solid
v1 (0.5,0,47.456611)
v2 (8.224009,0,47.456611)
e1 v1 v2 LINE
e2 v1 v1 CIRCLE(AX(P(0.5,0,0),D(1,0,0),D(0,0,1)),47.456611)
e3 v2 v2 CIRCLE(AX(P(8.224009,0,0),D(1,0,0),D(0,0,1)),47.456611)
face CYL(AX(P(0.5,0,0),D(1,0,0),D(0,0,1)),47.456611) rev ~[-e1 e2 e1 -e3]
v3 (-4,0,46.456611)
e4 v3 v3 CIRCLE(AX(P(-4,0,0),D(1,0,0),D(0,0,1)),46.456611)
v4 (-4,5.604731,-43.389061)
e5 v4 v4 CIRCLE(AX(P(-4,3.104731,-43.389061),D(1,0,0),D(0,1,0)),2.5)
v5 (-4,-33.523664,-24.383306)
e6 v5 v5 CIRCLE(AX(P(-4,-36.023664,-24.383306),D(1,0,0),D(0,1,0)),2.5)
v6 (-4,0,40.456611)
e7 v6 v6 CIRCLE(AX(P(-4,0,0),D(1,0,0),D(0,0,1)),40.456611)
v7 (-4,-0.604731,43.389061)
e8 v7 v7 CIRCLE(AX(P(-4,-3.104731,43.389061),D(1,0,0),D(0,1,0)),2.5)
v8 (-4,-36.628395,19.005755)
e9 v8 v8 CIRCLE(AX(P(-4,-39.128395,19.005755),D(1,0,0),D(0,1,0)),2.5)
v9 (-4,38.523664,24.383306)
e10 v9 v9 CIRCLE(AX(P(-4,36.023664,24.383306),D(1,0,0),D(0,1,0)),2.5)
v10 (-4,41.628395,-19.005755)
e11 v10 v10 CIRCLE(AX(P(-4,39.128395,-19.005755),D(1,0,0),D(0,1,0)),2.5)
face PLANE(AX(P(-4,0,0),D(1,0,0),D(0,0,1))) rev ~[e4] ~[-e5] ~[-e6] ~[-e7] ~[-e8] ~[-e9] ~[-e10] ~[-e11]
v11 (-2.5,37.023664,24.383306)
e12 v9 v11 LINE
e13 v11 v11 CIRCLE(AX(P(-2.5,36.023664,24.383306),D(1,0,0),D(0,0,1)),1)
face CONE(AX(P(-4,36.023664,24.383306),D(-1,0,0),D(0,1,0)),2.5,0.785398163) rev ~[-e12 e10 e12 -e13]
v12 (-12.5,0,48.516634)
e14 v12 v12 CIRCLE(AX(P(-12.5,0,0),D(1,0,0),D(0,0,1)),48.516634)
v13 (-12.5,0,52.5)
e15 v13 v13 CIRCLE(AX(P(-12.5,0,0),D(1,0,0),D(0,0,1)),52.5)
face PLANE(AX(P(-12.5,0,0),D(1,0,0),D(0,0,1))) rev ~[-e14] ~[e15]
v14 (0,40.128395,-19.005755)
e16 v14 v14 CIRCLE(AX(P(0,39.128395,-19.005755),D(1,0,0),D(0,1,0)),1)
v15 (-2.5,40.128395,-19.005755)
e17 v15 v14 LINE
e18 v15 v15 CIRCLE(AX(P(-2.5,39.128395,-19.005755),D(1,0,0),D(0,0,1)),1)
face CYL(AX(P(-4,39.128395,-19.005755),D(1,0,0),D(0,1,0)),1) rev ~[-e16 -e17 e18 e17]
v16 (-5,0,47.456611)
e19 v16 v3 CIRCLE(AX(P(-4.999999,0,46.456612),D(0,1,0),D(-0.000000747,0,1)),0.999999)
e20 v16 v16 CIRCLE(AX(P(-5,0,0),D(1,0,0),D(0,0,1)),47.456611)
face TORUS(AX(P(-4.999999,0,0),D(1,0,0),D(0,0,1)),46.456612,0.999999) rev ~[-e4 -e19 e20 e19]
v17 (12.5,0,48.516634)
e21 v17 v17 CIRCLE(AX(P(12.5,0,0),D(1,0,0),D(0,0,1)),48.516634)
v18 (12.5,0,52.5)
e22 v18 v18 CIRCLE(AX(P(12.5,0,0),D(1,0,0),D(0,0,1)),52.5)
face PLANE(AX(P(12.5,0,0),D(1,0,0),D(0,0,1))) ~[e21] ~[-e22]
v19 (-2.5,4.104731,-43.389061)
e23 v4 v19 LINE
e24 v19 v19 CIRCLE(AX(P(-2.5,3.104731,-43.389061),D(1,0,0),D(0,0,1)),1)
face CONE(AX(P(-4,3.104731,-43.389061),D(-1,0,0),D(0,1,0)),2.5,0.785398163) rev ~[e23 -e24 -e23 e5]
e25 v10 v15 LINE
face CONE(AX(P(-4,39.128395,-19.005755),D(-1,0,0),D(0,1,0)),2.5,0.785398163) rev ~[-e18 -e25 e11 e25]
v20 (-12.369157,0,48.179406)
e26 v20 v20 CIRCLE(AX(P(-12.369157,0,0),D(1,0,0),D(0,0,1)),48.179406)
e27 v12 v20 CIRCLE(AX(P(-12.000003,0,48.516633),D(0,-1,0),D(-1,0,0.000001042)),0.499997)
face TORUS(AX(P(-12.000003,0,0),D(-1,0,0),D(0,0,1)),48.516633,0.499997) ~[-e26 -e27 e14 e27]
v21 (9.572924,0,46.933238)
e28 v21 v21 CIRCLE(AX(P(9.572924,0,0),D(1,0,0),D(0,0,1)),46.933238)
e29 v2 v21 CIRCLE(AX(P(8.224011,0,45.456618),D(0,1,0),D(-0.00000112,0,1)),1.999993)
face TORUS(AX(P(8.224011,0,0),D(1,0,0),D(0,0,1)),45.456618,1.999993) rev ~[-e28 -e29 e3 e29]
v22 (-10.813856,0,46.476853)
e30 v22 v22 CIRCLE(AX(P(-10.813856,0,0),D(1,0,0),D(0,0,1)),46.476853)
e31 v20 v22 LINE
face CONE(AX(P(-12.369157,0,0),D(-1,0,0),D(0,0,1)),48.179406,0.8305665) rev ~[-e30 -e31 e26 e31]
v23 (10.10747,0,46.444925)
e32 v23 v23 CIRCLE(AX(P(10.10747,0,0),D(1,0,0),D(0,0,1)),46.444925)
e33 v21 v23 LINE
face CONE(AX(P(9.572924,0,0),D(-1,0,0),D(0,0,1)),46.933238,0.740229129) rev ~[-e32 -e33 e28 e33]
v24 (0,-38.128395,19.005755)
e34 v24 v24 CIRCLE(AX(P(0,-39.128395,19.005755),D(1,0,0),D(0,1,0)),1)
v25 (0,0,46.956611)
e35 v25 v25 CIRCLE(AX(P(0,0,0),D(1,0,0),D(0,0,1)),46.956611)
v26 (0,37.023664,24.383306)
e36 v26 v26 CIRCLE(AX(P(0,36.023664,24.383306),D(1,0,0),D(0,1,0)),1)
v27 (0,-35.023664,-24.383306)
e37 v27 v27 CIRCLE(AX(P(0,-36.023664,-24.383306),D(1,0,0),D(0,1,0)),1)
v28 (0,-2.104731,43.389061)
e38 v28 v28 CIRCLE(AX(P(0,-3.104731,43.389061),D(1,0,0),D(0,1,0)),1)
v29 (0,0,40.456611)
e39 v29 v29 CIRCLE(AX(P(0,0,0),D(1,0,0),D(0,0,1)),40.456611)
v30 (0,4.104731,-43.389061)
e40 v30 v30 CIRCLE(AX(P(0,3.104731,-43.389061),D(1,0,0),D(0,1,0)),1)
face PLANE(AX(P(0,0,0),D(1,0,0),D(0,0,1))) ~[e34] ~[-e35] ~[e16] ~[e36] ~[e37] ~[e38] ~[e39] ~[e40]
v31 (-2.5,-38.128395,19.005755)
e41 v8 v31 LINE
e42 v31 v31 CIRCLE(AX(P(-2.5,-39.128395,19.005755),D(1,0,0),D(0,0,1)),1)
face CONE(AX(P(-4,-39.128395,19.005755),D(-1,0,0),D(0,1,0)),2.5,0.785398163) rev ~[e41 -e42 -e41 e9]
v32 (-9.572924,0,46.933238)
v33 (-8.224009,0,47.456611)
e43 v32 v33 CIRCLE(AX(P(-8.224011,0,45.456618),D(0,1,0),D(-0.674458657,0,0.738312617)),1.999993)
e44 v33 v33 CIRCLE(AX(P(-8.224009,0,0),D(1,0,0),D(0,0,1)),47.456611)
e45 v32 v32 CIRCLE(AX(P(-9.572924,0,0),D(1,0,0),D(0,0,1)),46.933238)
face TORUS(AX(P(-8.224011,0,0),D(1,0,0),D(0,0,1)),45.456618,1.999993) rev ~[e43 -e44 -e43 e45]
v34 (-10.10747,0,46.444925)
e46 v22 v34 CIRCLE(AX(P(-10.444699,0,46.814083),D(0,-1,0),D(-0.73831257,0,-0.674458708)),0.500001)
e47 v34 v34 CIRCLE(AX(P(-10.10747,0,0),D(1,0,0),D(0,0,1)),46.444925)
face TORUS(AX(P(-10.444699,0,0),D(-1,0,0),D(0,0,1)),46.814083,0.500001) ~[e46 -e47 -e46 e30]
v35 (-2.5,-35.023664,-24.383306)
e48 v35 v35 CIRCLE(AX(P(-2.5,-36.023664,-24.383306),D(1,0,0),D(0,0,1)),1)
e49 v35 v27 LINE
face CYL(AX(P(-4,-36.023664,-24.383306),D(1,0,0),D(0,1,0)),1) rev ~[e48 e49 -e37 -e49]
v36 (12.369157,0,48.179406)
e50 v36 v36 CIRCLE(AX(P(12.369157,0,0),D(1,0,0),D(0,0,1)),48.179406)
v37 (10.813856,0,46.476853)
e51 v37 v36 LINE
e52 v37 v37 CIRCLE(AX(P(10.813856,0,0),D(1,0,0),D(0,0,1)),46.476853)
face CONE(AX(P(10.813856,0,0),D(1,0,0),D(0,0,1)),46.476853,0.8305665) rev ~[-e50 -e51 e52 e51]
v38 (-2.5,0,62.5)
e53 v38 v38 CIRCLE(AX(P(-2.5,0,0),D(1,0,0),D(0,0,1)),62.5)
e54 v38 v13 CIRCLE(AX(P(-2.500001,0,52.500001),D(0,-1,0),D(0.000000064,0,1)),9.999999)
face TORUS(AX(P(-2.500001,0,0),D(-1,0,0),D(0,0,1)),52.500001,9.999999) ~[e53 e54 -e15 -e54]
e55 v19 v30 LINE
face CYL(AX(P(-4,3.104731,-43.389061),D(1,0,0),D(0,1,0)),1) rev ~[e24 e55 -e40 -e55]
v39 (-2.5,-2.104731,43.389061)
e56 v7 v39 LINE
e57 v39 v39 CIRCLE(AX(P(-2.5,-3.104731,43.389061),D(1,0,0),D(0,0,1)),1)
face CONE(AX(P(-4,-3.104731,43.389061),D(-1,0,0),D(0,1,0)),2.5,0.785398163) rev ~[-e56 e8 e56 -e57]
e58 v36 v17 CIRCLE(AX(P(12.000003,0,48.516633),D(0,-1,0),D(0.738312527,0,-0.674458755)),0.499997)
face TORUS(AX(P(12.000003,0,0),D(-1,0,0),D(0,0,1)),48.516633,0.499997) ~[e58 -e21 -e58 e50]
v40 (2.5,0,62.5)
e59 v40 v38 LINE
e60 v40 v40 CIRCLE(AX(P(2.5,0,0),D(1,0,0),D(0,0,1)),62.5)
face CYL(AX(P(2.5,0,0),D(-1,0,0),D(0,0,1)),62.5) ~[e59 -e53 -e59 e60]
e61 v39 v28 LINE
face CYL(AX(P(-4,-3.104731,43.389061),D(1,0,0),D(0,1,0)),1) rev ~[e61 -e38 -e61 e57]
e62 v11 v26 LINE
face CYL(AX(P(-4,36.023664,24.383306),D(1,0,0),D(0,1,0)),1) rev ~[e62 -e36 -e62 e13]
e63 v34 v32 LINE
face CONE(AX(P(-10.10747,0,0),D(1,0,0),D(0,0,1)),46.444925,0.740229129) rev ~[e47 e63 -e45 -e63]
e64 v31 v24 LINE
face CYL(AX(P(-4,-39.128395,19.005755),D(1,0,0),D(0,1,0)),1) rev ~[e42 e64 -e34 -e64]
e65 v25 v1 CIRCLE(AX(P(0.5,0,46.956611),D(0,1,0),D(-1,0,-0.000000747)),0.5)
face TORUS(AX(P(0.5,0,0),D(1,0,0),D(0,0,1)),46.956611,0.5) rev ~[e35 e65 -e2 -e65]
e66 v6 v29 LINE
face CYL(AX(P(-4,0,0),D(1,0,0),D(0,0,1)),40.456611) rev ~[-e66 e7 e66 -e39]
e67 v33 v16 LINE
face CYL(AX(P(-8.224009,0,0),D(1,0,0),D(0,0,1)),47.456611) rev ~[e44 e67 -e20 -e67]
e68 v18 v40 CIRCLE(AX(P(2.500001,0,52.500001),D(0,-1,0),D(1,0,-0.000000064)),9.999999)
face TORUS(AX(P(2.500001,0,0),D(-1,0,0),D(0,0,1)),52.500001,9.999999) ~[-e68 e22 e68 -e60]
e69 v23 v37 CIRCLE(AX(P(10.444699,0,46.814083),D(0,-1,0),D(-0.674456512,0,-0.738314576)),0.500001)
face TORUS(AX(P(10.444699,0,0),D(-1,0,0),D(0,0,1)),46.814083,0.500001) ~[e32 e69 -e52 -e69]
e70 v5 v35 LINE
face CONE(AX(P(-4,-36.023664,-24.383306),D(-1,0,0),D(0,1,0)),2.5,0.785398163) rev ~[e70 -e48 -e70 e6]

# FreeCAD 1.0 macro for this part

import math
import FreeCAD as App
import Part
import Sketcher
from FreeCAD import Vector
Q = App.Units.Quantity

doc = App.newDocument("Part")
params = doc.addObject("Spreadsheet::Sheet", "Params")
for row, (alias, value) in enumerate([
    ("sketch1_radius", "9.999999 mm"),
    ("sketch1_radius2", "0.999999 mm"),
    ("sketch1_radius3", "0.500001 mm"),
    ("sketch1_width", "5 mm"),
    ("sketch1_width2", "4 mm"),
    ("revolution_angle", "360 deg"),
    ("sketch2_diameter", "2 mm"),
    ("hole_diameter", "2 mm"),
    ("hole_csink_diameter", "5 mm"),
], start=1):
    params.set(f"A{row}", alias)
    params.set(f"B{row}", "=" + value)
    params.setAlias(f"B{row}", alias)

body = doc.addObject("PartDesign::Body", "Body")

# Sketch on XZ plane
sketch1 = doc.addObject("Sketcher::SketchObject", "Sketch")
body.addObject(sketch1)
sketch1.AttachmentSupport = (doc.XZ_Plane, [""])
sketch1.MapMode = "FlatFace"
sketch1.addGeometry(Part.LineSegment(Vector(2.5, 62.5, 0), Vector(-2.5, 62.5, 0)), False)
sketch1.addGeometry(Part.ArcOfCircle(Part.Circle(Vector(-2.5, 52.5, 0), Vector(0, 0, 1), 10), math.radians(90), math.radians(180)), False)
sketch1.addGeometry(Part.LineSegment(Vector(-12.5, 52.5, 0), Vector(-12.5, 48.52, 0)), False)
sketch1.addGeometry(Part.ArcOfCircle(Part.Circle(Vector(-12, 48.52, 0), Vector(0, 0, 1), 0.5), math.radians(180), math.radians(222)), False)
sketch1.addGeometry(Part.LineSegment(Vector(-12.37, 48.18, 0), Vector(-10.81, 46.48, 0)), False)
sketch1.addGeometry(Part.ArcOfCircle(Part.Circle(Vector(-10.44, 46.81, 0), Vector(0, 0, 1), 0.5), math.radians(-138), math.radians(-48)), False)
sketch1.addGeometry(Part.LineSegment(Vector(-10.11, 46.44, 0), Vector(-9.57, 46.93, 0)), False)
sketch1.addGeometry(Part.ArcOfCircle(Part.Circle(Vector(-8.22, 45.46, 0), Vector(0, 0, 1), 2), math.radians(90), math.radians(132)), False)
sketch1.addGeometry(Part.LineSegment(Vector(-8.22, 47.46, 0), Vector(-5, 47.46, 0)), False)
sketch1.addGeometry(Part.ArcOfCircle(Part.Circle(Vector(-5, 46.46, 0), Vector(0, 0, 1), 1), math.radians(0), math.radians(90)), False)
sketch1.addGeometry(Part.LineSegment(Vector(-4, 46.46, 0), Vector(-4, 40.46, 0)), False)
sketch1.addGeometry(Part.LineSegment(Vector(-4, 40.46, 0), Vector(0, 40.46, 0)), False)
sketch1.addGeometry(Part.LineSegment(Vector(0, 40.46, 0), Vector(0, 46.96, 0)), False)
sketch1.addGeometry(Part.ArcOfCircle(Part.Circle(Vector(0.5, 46.96, 0), Vector(0, 0, 1), 0.5), math.radians(90), math.radians(180)), False)
sketch1.addGeometry(Part.LineSegment(Vector(0.5, 47.46, 0), Vector(8.22, 47.46, 0)), False)
sketch1.addGeometry(Part.ArcOfCircle(Part.Circle(Vector(8.22, 45.46, 0), Vector(0, 0, 1), 2), math.radians(48), math.radians(90)), False)
sketch1.addGeometry(Part.LineSegment(Vector(9.57, 46.93, 0), Vector(10.11, 46.44, 0)), False)
sketch1.addGeometry(Part.ArcOfCircle(Part.Circle(Vector(10.44, 46.81, 0), Vector(0, 0, 1), 0.5), math.radians(-132), math.radians(-42)), False)
sketch1.addGeometry(Part.LineSegment(Vector(10.81, 46.48, 0), Vector(12.37, 48.18, 0)), False)
sketch1.addGeometry(Part.ArcOfCircle(Part.Circle(Vector(12, 48.52, 0), Vector(0, 0, 1), 0.5), math.radians(-42), math.radians(0)), False)
sketch1.addGeometry(Part.LineSegment(Vector(12.5, 48.52, 0), Vector(12.5, 52.5, 0)), False)
sketch1.addGeometry(Part.ArcOfCircle(Part.Circle(Vector(2.5, 52.5, 0), Vector(0, 0, 1), 10), math.radians(0), math.radians(90)), False)
sketch1.addConstraint(Sketcher.Constraint("Tangent", 0, 2, 1, 1))
sketch1.addConstraint(Sketcher.Constraint("Tangent", 1, 2, 2, 1))
sketch1.addConstraint(Sketcher.Constraint("Tangent", 2, 2, 3, 1))
sketch1.addConstraint(Sketcher.Constraint("Tangent", 3, 2, 4, 1))
sketch1.addConstraint(Sketcher.Constraint("Tangent", 4, 2, 5, 1))
sketch1.addConstraint(Sketcher.Constraint("Tangent", 5, 2, 6, 1))
sketch1.addConstraint(Sketcher.Constraint("Coincident", 6, 2, 7, 2))
sketch1.addConstraint(Sketcher.Constraint("Tangent", 7, 1, 8, 1))
sketch1.addConstraint(Sketcher.Constraint("Tangent", 8, 2, 9, 2))
sketch1.addConstraint(Sketcher.Constraint("Tangent", 9, 1, 10, 1))
sketch1.addConstraint(Sketcher.Constraint("Coincident", 10, 2, 11, 1))
sketch1.addConstraint(Sketcher.Constraint("Coincident", 11, 2, 12, 1))
sketch1.addConstraint(Sketcher.Constraint("Tangent", 12, 2, 13, 2))
sketch1.addConstraint(Sketcher.Constraint("Tangent", 13, 1, 14, 1))
sketch1.addConstraint(Sketcher.Constraint("Tangent", 14, 2, 15, 2))
sketch1.addConstraint(Sketcher.Constraint("Coincident", 15, 1, 16, 1))
sketch1.addConstraint(Sketcher.Constraint("Tangent", 16, 2, 17, 1))
sketch1.addConstraint(Sketcher.Constraint("Tangent", 17, 2, 18, 1))
sketch1.addConstraint(Sketcher.Constraint("Tangent", 18, 2, 19, 1))
sketch1.addConstraint(Sketcher.Constraint("Tangent", 19, 2, 20, 1))
sketch1.addConstraint(Sketcher.Constraint("Tangent", 20, 2, 21, 1))
sketch1.addConstraint(Sketcher.Constraint("Tangent", 21, 2, 0, 1))
sketch1.addConstraint(Sketcher.Constraint("Horizontal", 0))
sketch1.addConstraint(Sketcher.Constraint("Vertical", 2))
sketch1.addConstraint(Sketcher.Constraint("Horizontal", 8))
sketch1.addConstraint(Sketcher.Constraint("Vertical", 10))
sketch1.addConstraint(Sketcher.Constraint("Horizontal", 11))
sketch1.addConstraint(Sketcher.Constraint("Vertical", 12))
sketch1.addConstraint(Sketcher.Constraint("Horizontal", 14))
sketch1.addConstraint(Sketcher.Constraint("Vertical", 20))
sketch1.addConstraint(Sketcher.Constraint("Equal", 5, 13))
sketch1.addConstraint(Sketcher.Constraint("Equal", 7, 15))
sketch1.addConstraint(Sketcher.Constraint("Equal", 13, 17))
sketch1.addConstraint(Sketcher.Constraint("Equal", 3, 19))
sketch1.addConstraint(Sketcher.Constraint("Equal", 1, 21))
sketch1.addConstraint(Sketcher.Constraint("Symmetric", 7, 3, 15, 3, -2))
sketch1.addConstraint(Sketcher.Constraint("Symmetric", 5, 3, 17, 3, -2))
sketch1.addConstraint(Sketcher.Constraint("Symmetric", 3, 3, 19, 3, -2))
sketch1.addConstraint(Sketcher.Constraint("PointOnObject", 11, 2, -2))
sketch1.addConstraint(Sketcher.Constraint("Perpendicular", 4, 6))
sketch1.addConstraint(Sketcher.Constraint("Horizontal", 6, 2, 15, 1))
sketch1.addConstraint(Sketcher.Constraint("Radius", 1, Q("9.999999 mm")))
sketch1.addConstraint(Sketcher.Constraint("Radius", 9, Q("0.999999 mm")))
sketch1.addConstraint(Sketcher.Constraint("Radius", 5, Q("0.500001 mm")))
sketch1.addConstraint(Sketcher.Constraint("DistanceX", 0, 2, 0, 1, Q("5 mm")))
sketch1.addConstraint(Sketcher.Constraint("DistanceX", 11, 1, 11, 2, Q("4 mm")))
sketch1.addConstraint(Sketcher.Constraint("DistanceY", 10, 2, 10, 1, Q("6 mm")))
sketch1.addConstraint(Sketcher.Constraint("DistanceY", -1, 1, 1, 3, Q("52.500001 mm")))
sketch1.addConstraint(Sketcher.Constraint("Radius", 3, Q("0.499997 mm")))
sketch1.addConstraint(Sketcher.Constraint("Radius", 7, Q("1.999993 mm")))
sketch1.addConstraint(Sketcher.Constraint("DistanceX", 8, 1, 8, 2, Q("3.224009 mm")))
sketch1.addConstraint(Sketcher.Constraint("DistanceX", 5, 3, -1, 1, Q("10.444699 mm")))
sketch1.addConstraint(Sketcher.Constraint("Distance", 6, Q("0.724009 mm")))
sketch1.addConstraint(Sketcher.Constraint("DistanceY", 2, 2, 2, 1, Q("3.983366 mm")))
sketch1.addConstraint(Sketcher.Constraint("DistanceY", -1, 1, 9, 3, Q("46.456612 mm")))
sketch1.setExpression("Constraints[41]", "Params.sketch1_radius")
sketch1.setExpression("Constraints[42]", "Params.sketch1_radius2")
sketch1.setExpression("Constraints[43]", "Params.sketch1_radius3")
sketch1.setExpression("Constraints[44]", "Params.sketch1_width")
sketch1.setExpression("Constraints[45]", "Params.sketch1_width2")
revolution = doc.addObject("PartDesign::Revolution", "Revolution")
body.addObject(revolution)
revolution.Profile = sketch1
revolution.ReferenceAxis = (sketch1, ["H_Axis"])
revolution.setExpression("Angle", "Params.revolution_angle")

# Sketch on YZ plane
sketch2 = doc.addObject("Sketcher::SketchObject", "Sketch001")
body.addObject(sketch2)
sketch2.AttachmentSupport = (doc.YZ_Plane, [""])
sketch2.MapMode = "FlatFace"
sketch2.AttachmentOffset = App.Placement(Vector(0, 0, -4), App.Rotation())
sketch2.addGeometry(Part.Circle(Vector(3.1, -43.4, 0), Vector(0, 0, 1), 1), False)
sketch2.addGeometry(Part.Circle(Vector(-36, -24.4, 0), Vector(0, 0, 1), 1), False)
sketch2.addGeometry(Part.Circle(Vector(-39.1, 19, 0), Vector(0, 0, 1), 1), False)
sketch2.addGeometry(Part.Circle(Vector(-3.1, 43.4, 0), Vector(0, 0, 1), 1), False)
sketch2.addGeometry(Part.Circle(Vector(36, 24.4, 0), Vector(0, 0, 1), 1), False)
sketch2.addGeometry(Part.Circle(Vector(39.1, -19, 0), Vector(0, 0, 1), 1), False)
sketch2.addConstraint(Sketcher.Constraint("Equal", 0, 1))
sketch2.addConstraint(Sketcher.Constraint("Equal", 1, 2))
sketch2.addConstraint(Sketcher.Constraint("Equal", 2, 3))
sketch2.addConstraint(Sketcher.Constraint("Equal", 3, 4))
sketch2.addConstraint(Sketcher.Constraint("Equal", 4, 5))
sketch2.addConstraint(Sketcher.Constraint("Symmetric", 0, 3, 3, 3, -1, 1))
sketch2.addConstraint(Sketcher.Constraint("Symmetric", 1, 3, 4, 3, -1, 1))
sketch2.addConstraint(Sketcher.Constraint("Symmetric", 2, 3, 5, 3, -1, 1))
sketch2.addConstraint(Sketcher.Constraint("Diameter", 0, Q("2 mm")))
sketch2.addConstraint(Sketcher.Constraint("DistanceX", -1, 1, 0, 3, Q("3.104731 mm")))
sketch2.addConstraint(Sketcher.Constraint("DistanceY", 0, 3, -1, 1, Q("43.389061 mm")))
sketch2.addConstraint(Sketcher.Constraint("DistanceX", 2, 3, 1, 3, Q("3.104731 mm")))
sketch2.addConstraint(Sketcher.Constraint("DistanceY", 1, 3, 2, 3, Q("43.389061 mm")))
sketch2.addConstraint(Sketcher.Constraint("DistanceX", 2, 3, 4, 3, Q("75.152059 mm")))
sketch2.addConstraint(Sketcher.Constraint("DistanceY", 2, 3, 4, 3, Q("5.377551 mm")))
sketch2.setExpression("Constraints[8]", "Params.sketch2_diameter")
doc.recompute()
hole = doc.addObject("PartDesign::Hole", "Hole")
body.addObject(hole)
hole.Profile = sketch2
hole.ThreadType = "None"
hole.setExpression("Diameter", "Params.hole_diameter")
hole.DepthType = "ThroughAll"
hole.HoleCutType = "Countersink"
hole.setExpression("HoleCutDiameter", "Params.hole_csink_diameter")
hole.HoleCutCountersinkAngle = 90
hole.Reversed = True

doc.recompute()
